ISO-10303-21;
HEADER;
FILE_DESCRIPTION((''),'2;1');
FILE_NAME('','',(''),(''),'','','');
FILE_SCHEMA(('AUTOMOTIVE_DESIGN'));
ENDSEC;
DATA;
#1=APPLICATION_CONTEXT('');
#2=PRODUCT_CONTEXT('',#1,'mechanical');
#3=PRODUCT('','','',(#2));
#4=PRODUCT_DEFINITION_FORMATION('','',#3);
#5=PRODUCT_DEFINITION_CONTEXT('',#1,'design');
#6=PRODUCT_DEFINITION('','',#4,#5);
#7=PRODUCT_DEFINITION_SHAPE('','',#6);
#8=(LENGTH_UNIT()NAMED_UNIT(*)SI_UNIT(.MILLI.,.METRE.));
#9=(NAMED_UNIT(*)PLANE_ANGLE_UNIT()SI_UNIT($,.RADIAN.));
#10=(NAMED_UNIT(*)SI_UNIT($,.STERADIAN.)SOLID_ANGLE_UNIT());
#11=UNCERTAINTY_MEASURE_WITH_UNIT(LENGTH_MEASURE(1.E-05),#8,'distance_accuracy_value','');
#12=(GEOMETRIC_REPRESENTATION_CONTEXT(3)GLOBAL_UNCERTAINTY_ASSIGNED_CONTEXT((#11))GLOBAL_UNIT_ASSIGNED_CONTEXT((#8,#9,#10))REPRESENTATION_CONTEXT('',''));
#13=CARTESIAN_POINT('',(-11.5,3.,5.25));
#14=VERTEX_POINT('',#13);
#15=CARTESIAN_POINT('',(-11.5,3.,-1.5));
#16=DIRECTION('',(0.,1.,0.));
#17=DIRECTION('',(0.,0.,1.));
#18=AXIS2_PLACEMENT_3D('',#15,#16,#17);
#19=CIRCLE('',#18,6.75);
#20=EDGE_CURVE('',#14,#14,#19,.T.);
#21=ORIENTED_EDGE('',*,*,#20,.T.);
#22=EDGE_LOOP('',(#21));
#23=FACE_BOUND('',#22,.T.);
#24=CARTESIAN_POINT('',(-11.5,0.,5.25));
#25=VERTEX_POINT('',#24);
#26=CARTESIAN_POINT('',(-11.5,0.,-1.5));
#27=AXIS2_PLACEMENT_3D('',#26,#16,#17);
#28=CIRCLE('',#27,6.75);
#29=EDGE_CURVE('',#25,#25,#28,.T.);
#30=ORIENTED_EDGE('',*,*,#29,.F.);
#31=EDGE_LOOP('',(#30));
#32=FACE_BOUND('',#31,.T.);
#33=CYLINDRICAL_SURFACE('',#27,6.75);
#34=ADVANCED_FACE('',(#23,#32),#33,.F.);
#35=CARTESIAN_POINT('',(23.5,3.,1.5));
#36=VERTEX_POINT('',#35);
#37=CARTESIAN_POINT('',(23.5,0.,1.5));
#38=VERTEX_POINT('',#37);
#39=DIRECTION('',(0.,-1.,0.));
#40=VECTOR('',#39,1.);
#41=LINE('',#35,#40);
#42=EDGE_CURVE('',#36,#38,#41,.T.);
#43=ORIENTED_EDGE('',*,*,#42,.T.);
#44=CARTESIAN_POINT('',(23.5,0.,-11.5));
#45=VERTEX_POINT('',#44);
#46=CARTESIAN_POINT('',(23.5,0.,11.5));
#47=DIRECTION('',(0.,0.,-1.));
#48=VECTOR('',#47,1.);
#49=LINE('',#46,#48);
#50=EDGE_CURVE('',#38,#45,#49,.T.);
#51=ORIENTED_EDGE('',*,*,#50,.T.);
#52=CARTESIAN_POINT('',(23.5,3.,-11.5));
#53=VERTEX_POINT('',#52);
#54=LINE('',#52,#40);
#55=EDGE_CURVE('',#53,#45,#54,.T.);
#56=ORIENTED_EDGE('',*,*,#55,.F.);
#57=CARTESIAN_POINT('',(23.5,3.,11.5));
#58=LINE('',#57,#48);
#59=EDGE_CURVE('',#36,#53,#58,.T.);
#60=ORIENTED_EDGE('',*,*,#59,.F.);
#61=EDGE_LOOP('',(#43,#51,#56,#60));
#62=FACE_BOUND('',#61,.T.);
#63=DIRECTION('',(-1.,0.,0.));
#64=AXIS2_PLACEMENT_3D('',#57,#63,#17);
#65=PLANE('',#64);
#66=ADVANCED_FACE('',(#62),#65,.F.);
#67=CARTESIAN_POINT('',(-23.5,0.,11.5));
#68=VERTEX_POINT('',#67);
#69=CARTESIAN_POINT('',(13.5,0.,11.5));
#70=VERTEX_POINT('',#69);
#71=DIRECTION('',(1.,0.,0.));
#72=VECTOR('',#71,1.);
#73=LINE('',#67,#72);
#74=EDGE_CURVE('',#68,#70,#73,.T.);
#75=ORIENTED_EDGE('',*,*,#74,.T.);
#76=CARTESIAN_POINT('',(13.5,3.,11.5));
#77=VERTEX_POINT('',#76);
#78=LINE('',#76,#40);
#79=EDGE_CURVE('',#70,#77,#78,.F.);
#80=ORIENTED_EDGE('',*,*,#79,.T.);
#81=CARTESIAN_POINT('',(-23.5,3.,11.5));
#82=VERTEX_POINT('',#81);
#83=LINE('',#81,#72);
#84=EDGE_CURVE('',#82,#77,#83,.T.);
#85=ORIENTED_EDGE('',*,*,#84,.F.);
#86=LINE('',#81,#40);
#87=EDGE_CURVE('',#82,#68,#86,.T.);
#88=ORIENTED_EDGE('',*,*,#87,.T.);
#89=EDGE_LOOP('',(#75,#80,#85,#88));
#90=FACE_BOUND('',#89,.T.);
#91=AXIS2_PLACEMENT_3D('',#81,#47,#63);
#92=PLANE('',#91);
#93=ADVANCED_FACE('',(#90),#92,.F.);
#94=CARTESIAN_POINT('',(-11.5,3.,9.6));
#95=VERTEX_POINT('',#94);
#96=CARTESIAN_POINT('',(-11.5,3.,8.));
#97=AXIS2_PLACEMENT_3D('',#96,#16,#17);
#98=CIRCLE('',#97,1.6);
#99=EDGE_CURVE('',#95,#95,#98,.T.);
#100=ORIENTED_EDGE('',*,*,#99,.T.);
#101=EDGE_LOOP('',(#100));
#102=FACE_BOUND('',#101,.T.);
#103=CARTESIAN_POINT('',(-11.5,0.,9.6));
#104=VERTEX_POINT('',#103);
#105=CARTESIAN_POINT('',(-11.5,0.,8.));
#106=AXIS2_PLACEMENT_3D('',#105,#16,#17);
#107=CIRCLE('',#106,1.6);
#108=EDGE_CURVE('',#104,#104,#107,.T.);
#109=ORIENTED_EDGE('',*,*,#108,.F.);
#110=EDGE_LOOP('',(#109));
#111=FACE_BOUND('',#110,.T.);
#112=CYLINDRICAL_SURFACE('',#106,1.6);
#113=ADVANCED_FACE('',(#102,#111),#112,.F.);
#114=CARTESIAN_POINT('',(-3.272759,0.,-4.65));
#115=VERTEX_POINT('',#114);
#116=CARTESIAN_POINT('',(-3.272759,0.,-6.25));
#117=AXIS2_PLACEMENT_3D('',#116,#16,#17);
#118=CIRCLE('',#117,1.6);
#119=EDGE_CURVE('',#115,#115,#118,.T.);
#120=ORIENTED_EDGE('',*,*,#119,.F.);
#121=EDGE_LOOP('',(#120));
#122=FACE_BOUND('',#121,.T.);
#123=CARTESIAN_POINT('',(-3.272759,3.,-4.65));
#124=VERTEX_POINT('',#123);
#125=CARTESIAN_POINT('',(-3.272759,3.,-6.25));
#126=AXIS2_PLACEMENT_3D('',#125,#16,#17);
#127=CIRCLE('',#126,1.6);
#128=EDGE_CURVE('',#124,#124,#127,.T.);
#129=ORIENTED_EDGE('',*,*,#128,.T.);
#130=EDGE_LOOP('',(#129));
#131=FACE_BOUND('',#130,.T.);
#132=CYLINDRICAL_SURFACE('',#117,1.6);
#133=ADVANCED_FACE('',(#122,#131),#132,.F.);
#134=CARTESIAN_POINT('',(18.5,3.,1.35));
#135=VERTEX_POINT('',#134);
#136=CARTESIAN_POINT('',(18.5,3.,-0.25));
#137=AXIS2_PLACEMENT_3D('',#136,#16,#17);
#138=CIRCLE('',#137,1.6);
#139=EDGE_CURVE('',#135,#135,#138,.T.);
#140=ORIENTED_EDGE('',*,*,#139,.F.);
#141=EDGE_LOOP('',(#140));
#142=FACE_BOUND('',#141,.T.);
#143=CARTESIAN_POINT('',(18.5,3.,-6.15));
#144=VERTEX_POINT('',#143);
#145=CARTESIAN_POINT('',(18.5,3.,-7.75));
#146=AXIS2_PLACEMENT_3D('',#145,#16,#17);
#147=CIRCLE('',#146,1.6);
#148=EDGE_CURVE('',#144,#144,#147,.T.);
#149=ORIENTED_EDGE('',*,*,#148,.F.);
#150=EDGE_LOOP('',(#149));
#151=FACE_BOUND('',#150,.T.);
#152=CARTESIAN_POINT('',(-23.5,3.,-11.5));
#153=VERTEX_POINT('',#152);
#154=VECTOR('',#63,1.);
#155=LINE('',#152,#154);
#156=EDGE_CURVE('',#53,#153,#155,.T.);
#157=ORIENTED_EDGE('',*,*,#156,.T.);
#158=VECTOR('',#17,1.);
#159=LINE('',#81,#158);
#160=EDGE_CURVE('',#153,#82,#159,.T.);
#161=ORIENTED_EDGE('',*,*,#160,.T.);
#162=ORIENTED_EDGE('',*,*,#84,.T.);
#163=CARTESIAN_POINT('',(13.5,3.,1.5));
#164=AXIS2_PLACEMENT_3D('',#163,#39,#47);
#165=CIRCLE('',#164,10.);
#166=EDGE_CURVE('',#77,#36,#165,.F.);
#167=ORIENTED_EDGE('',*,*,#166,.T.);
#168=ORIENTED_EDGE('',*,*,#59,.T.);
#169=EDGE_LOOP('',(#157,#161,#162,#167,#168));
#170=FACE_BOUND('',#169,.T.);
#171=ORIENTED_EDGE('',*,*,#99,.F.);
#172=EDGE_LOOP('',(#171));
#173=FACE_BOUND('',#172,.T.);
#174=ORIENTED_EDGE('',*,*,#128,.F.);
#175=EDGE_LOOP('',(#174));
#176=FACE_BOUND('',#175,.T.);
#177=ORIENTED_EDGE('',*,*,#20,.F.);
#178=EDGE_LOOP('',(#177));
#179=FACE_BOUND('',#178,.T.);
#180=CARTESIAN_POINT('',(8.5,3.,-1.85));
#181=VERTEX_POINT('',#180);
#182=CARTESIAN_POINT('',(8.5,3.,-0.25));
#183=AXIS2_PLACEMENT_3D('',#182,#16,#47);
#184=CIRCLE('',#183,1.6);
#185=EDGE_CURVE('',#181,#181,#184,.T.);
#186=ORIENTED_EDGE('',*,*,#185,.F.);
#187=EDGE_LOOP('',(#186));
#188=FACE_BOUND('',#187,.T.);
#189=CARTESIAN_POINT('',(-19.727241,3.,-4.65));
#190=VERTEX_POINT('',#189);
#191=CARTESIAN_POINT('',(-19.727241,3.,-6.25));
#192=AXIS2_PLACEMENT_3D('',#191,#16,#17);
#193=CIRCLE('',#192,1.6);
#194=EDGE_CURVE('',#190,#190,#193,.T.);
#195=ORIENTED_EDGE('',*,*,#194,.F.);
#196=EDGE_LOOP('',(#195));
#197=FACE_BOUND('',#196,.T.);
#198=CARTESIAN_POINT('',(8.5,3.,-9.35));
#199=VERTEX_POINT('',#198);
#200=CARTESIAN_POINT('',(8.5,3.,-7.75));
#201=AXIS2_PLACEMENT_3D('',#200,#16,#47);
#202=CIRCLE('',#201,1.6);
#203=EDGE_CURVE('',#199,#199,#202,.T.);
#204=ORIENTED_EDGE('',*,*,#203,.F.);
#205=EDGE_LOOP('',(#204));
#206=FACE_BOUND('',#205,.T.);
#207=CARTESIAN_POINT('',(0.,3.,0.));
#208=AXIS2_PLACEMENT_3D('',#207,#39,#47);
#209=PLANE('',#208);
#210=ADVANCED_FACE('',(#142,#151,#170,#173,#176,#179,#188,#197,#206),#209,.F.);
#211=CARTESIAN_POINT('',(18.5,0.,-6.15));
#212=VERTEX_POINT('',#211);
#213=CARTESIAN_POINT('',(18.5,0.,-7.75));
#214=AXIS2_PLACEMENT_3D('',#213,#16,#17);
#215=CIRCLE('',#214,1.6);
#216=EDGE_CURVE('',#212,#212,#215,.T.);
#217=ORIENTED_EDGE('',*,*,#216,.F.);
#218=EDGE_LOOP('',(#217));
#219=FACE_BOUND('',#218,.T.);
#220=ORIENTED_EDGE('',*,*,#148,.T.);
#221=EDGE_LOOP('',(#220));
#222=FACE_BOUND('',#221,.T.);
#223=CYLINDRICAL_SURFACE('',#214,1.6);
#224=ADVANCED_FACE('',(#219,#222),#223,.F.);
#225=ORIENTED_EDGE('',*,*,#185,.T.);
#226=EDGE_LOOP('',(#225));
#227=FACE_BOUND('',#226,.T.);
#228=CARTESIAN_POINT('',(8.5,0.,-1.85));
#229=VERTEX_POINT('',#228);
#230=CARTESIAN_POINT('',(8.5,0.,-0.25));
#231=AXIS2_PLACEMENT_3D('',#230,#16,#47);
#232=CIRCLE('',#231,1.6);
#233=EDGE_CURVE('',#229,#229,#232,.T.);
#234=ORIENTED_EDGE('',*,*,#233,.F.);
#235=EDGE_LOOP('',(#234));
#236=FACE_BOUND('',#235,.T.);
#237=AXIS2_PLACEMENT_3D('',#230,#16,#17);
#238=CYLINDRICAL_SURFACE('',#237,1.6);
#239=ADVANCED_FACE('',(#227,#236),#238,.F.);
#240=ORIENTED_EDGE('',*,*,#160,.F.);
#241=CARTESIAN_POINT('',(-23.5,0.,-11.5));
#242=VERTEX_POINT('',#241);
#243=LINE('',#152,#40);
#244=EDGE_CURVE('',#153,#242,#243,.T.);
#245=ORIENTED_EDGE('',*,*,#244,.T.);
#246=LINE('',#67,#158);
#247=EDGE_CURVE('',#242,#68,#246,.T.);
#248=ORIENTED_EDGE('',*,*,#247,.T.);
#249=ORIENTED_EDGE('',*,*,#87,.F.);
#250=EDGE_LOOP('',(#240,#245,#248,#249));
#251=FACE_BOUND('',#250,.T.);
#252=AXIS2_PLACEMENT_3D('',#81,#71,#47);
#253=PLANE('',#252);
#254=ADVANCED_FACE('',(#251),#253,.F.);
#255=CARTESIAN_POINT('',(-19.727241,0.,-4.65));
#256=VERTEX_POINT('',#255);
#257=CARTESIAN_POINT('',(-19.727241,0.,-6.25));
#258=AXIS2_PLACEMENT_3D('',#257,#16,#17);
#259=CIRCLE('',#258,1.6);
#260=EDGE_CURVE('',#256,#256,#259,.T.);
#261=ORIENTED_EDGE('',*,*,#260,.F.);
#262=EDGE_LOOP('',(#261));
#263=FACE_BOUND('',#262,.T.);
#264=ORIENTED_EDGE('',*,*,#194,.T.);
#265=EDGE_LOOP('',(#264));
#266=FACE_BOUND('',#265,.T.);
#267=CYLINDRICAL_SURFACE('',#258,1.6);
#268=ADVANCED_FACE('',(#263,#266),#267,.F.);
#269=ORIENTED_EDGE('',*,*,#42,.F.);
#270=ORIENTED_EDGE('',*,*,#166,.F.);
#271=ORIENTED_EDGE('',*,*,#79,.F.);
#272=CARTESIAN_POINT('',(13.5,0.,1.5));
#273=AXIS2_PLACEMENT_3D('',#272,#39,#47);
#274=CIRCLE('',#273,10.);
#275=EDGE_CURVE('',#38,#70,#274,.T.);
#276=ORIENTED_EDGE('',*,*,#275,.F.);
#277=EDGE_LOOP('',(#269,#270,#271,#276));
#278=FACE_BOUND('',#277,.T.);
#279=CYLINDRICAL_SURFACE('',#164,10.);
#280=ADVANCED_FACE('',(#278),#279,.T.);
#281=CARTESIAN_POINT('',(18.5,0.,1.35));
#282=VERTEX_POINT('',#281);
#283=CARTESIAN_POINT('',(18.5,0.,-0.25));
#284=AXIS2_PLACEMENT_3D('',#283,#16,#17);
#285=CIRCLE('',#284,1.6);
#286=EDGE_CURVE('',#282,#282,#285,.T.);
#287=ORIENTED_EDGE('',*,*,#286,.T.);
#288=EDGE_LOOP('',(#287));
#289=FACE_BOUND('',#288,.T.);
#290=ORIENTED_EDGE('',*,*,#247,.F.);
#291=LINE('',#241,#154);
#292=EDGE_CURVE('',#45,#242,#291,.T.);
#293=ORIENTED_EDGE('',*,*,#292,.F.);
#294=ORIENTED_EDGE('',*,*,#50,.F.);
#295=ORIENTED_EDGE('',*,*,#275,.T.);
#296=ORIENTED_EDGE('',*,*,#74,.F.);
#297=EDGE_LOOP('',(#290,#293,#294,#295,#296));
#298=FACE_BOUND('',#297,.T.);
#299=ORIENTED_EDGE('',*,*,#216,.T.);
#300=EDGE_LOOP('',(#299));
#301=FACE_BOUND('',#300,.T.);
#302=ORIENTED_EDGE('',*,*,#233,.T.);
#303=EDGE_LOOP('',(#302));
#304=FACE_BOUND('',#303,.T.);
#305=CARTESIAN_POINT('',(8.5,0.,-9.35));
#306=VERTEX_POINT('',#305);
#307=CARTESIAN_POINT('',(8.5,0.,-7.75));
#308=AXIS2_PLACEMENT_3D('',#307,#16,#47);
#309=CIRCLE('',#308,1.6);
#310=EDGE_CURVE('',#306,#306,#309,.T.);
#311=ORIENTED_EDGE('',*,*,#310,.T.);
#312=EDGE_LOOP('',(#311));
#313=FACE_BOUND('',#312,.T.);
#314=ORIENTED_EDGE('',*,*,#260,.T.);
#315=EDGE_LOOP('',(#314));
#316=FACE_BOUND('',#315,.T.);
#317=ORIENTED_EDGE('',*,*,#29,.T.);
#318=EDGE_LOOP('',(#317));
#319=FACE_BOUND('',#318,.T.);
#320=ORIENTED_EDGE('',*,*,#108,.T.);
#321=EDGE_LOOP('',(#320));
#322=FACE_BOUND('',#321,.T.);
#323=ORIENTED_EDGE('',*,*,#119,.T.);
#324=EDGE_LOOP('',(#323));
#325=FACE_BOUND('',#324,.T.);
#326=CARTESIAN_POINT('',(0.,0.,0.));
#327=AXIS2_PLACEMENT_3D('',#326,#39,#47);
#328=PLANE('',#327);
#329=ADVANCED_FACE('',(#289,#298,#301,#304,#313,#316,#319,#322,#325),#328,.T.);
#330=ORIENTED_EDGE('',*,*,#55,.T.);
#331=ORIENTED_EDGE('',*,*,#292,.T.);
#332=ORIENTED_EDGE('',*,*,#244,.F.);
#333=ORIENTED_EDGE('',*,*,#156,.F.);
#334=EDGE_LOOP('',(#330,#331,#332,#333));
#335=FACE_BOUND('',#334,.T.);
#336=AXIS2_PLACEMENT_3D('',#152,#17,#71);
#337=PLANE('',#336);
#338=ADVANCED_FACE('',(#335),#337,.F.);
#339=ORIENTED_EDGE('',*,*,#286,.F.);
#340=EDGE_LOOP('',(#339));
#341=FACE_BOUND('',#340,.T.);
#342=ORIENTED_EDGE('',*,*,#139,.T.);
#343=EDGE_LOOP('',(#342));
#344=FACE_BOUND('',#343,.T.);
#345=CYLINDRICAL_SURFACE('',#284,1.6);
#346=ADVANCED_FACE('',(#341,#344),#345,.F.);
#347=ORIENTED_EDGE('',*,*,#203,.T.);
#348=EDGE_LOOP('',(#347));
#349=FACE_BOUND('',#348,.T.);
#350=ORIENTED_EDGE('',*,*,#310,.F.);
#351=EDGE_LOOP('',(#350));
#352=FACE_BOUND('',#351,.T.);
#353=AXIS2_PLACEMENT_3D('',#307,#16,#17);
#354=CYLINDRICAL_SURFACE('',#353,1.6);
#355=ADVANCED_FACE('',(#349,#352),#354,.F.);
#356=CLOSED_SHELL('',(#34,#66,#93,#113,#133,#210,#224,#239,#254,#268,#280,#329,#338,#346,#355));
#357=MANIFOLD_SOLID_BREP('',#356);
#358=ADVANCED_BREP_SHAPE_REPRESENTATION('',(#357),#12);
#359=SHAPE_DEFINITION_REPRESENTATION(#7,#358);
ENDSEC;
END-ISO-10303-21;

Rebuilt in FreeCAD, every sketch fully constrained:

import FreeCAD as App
import Part
import Sketcher
Q = App.Units.Quantity


def edges_at(feature, points):
    """Names of the edges that pass closest to the given points."""
    edges = feature.Shape.Edges
    near = lambda p: min(range(len(edges)), key=lambda i: edges[i].distToShape(Part.Vertex(*p))[0])
    return sorted({f"Edge{near(p) + 1}" for p in points})

doc = App.newDocument("Part")
body = doc.addObject("PartDesign::Body", "Body")

# Sketch on XZ plane
sketch1 = body.newObject("Sketcher::SketchObject", "Sketch")
sketch1.AttachmentSupport = (doc.getObject("XZ_Plane"), [""])
sketch1.MapMode = "FlatFace"
sketch1.addGeometry(Part.LineSegment(App.Vector(-23.5, -11.5, 0), App.Vector(-23.5, 11.5, 0)), False)
sketch1.addGeometry(Part.LineSegment(App.Vector(-23.5, 11.5, 0), App.Vector(23.5, 11.5, 0)), False)
sketch1.addGeometry(Part.LineSegment(App.Vector(23.5, 11.5, 0), App.Vector(23.5, -11.5, 0)), False)
sketch1.addGeometry(Part.LineSegment(App.Vector(23.5, -11.5, 0), App.Vector(-23.5, -11.5, 0)), False)
sketch1.addConstraint(Sketcher.Constraint("Coincident", 0, 2, 1, 1))
sketch1.addConstraint(Sketcher.Constraint("Coincident", 1, 2, 2, 1))
sketch1.addConstraint(Sketcher.Constraint("Coincident", 2, 2, 3, 1))
sketch1.addConstraint(Sketcher.Constraint("Coincident", 3, 2, 0, 1))
sketch1.addConstraint(Sketcher.Constraint("Vertical", 0))
sketch1.addConstraint(Sketcher.Constraint("Horizontal", 1))
sketch1.addConstraint(Sketcher.Constraint("Vertical", 2))
sketch1.addConstraint(Sketcher.Constraint("Horizontal", 3))
sketch1.addConstraint(Sketcher.Constraint("Symmetric", 0, 2, 2, 2, -1, 1))
sketch1.addConstraint(Sketcher.Constraint("DistanceX", 1, 1, 1, 2, Q("47 mm")))
sketch1.addConstraint(Sketcher.Constraint("DistanceY", 0, 1, 0, 2, Q("23 mm")))
pad1 = body.newObject("PartDesign::Pad", "Pad")
pad1.Profile = sketch1
pad1.Length = 3
pad1.Reversed = True

# Sketch on XZ plane
sketch2 = body.newObject("Sketcher::SketchObject", "Sketch001")
sketch2.AttachmentSupport = (doc.getObject("XZ_Plane"), [""])
sketch2.MapMode = "FlatFace"
sketch2.AttachmentOffset = App.Placement(App.Vector(0, 0, -3), App.Rotation())
sketch2.addGeometry(Part.Circle(App.Vector(-19.727241, -6.25, 0), App.Vector(0, 0, 1), 1.6), False)
sketch2.addGeometry(Part.Circle(App.Vector(-11.5, 8, 0), App.Vector(0, 0, 1), 1.6), False)
sketch2.addGeometry(Part.Circle(App.Vector(-3.272759, -6.25, 0), App.Vector(0, 0, 1), 1.6), False)
sketch2.addGeometry(Part.Circle(App.Vector(-11.5, -1.5, 0), App.Vector(0, 0, 1), 6.75), False)
sketch2.addGeometry(Part.Circle(App.Vector(18.5, -7.75, 0), App.Vector(0, 0, 1), 1.6), False)
sketch2.addGeometry(Part.Circle(App.Vector(18.5, -0.25, 0), App.Vector(0, 0, 1), 1.6), False)
sketch2.addGeometry(Part.Circle(App.Vector(8.5, -0.25, 0), App.Vector(0, 0, 1), 1.6), False)
sketch2.addGeometry(Part.Circle(App.Vector(8.5, -7.75, 0), App.Vector(0, 0, 1), 1.6), False)
sketch2.addConstraint(Sketcher.Constraint("Equal", 0, 1))
sketch2.addConstraint(Sketcher.Constraint("Equal", 1, 2))
sketch2.addConstraint(Sketcher.Constraint("Equal", 2, 4))
sketch2.addConstraint(Sketcher.Constraint("Equal", 4, 5))
sketch2.addConstraint(Sketcher.Constraint("Equal", 5, 6))
sketch2.addConstraint(Sketcher.Constraint("Equal", 6, 7))
sketch2.addConstraint(Sketcher.Constraint("Horizontal", 0, 3, 2, 3))
sketch2.addConstraint(Sketcher.Constraint("Horizontal", 5, 3, 6, 3))
sketch2.addConstraint(Sketcher.Constraint("Horizontal", 4, 3, 7, 3))
sketch2.addConstraint(Sketcher.Constraint("Vertical", 1, 3, 3, 3))
sketch2.addConstraint(Sketcher.Constraint("Vertical", 4, 3, 5, 3))
sketch2.addConstraint(Sketcher.Constraint("Vertical", 6, 3, 7, 3))
sketch2.addConstraint(Sketcher.Constraint("Diameter", 0, Q("3.2 mm")))
sketch2.addConstraint(Sketcher.Constraint("Diameter", 3, Q("13.5 mm")))
sketch2.addConstraint(Sketcher.Constraint("DistanceY", -1, 1, 1, 3, Q("8 mm")))
sketch2.addConstraint(Sketcher.Constraint("DistanceX", 3, 3, 4, 3, Q("30 mm")))
sketch2.addConstraint(Sketcher.Constraint("DistanceY", 2, 3, 5, 3, Q("6 mm")))
sketch2.addConstraint(Sketcher.Constraint("DistanceX", 6, 3, 5, 3, Q("10 mm")))
sketch2.addConstraint(Sketcher.Constraint("DistanceX", 1, 3, -1, 1, Q("11.5 mm")))
sketch2.addConstraint(Sketcher.Constraint("DistanceY", 3, 3, -1, 1, Q("1.5 mm")))
sketch2.addConstraint(Sketcher.Constraint("DistanceY", 4, 3, 2, 3, Q("1.5 mm")))
sketch2.addConstraint(Sketcher.Constraint("DistanceY", 0, 3, -1, 1, Q("6.25 mm")))
sketch2.addConstraint(Sketcher.Constraint("DistanceX", 0, 3, -1, 1, Q("19.727241 mm")))
sketch2.addConstraint(Sketcher.Constraint("DistanceX", 2, 3, -1, 1, Q("3.272759 mm")))
pocket1 = body.newObject("PartDesign::Pocket", "Pocket")
pocket1.Profile = sketch2
pocket1.Type = "ThroughAll"
pocket1.Reversed = True
doc.recompute()

fillet = body.newObject("PartDesign::Fillet", "Fillet")
fillet.Base = (pocket1, edges_at(pocket1, [(23.5, 1.5, 11.5)]))
fillet.Radius = 10

doc.recompute()
